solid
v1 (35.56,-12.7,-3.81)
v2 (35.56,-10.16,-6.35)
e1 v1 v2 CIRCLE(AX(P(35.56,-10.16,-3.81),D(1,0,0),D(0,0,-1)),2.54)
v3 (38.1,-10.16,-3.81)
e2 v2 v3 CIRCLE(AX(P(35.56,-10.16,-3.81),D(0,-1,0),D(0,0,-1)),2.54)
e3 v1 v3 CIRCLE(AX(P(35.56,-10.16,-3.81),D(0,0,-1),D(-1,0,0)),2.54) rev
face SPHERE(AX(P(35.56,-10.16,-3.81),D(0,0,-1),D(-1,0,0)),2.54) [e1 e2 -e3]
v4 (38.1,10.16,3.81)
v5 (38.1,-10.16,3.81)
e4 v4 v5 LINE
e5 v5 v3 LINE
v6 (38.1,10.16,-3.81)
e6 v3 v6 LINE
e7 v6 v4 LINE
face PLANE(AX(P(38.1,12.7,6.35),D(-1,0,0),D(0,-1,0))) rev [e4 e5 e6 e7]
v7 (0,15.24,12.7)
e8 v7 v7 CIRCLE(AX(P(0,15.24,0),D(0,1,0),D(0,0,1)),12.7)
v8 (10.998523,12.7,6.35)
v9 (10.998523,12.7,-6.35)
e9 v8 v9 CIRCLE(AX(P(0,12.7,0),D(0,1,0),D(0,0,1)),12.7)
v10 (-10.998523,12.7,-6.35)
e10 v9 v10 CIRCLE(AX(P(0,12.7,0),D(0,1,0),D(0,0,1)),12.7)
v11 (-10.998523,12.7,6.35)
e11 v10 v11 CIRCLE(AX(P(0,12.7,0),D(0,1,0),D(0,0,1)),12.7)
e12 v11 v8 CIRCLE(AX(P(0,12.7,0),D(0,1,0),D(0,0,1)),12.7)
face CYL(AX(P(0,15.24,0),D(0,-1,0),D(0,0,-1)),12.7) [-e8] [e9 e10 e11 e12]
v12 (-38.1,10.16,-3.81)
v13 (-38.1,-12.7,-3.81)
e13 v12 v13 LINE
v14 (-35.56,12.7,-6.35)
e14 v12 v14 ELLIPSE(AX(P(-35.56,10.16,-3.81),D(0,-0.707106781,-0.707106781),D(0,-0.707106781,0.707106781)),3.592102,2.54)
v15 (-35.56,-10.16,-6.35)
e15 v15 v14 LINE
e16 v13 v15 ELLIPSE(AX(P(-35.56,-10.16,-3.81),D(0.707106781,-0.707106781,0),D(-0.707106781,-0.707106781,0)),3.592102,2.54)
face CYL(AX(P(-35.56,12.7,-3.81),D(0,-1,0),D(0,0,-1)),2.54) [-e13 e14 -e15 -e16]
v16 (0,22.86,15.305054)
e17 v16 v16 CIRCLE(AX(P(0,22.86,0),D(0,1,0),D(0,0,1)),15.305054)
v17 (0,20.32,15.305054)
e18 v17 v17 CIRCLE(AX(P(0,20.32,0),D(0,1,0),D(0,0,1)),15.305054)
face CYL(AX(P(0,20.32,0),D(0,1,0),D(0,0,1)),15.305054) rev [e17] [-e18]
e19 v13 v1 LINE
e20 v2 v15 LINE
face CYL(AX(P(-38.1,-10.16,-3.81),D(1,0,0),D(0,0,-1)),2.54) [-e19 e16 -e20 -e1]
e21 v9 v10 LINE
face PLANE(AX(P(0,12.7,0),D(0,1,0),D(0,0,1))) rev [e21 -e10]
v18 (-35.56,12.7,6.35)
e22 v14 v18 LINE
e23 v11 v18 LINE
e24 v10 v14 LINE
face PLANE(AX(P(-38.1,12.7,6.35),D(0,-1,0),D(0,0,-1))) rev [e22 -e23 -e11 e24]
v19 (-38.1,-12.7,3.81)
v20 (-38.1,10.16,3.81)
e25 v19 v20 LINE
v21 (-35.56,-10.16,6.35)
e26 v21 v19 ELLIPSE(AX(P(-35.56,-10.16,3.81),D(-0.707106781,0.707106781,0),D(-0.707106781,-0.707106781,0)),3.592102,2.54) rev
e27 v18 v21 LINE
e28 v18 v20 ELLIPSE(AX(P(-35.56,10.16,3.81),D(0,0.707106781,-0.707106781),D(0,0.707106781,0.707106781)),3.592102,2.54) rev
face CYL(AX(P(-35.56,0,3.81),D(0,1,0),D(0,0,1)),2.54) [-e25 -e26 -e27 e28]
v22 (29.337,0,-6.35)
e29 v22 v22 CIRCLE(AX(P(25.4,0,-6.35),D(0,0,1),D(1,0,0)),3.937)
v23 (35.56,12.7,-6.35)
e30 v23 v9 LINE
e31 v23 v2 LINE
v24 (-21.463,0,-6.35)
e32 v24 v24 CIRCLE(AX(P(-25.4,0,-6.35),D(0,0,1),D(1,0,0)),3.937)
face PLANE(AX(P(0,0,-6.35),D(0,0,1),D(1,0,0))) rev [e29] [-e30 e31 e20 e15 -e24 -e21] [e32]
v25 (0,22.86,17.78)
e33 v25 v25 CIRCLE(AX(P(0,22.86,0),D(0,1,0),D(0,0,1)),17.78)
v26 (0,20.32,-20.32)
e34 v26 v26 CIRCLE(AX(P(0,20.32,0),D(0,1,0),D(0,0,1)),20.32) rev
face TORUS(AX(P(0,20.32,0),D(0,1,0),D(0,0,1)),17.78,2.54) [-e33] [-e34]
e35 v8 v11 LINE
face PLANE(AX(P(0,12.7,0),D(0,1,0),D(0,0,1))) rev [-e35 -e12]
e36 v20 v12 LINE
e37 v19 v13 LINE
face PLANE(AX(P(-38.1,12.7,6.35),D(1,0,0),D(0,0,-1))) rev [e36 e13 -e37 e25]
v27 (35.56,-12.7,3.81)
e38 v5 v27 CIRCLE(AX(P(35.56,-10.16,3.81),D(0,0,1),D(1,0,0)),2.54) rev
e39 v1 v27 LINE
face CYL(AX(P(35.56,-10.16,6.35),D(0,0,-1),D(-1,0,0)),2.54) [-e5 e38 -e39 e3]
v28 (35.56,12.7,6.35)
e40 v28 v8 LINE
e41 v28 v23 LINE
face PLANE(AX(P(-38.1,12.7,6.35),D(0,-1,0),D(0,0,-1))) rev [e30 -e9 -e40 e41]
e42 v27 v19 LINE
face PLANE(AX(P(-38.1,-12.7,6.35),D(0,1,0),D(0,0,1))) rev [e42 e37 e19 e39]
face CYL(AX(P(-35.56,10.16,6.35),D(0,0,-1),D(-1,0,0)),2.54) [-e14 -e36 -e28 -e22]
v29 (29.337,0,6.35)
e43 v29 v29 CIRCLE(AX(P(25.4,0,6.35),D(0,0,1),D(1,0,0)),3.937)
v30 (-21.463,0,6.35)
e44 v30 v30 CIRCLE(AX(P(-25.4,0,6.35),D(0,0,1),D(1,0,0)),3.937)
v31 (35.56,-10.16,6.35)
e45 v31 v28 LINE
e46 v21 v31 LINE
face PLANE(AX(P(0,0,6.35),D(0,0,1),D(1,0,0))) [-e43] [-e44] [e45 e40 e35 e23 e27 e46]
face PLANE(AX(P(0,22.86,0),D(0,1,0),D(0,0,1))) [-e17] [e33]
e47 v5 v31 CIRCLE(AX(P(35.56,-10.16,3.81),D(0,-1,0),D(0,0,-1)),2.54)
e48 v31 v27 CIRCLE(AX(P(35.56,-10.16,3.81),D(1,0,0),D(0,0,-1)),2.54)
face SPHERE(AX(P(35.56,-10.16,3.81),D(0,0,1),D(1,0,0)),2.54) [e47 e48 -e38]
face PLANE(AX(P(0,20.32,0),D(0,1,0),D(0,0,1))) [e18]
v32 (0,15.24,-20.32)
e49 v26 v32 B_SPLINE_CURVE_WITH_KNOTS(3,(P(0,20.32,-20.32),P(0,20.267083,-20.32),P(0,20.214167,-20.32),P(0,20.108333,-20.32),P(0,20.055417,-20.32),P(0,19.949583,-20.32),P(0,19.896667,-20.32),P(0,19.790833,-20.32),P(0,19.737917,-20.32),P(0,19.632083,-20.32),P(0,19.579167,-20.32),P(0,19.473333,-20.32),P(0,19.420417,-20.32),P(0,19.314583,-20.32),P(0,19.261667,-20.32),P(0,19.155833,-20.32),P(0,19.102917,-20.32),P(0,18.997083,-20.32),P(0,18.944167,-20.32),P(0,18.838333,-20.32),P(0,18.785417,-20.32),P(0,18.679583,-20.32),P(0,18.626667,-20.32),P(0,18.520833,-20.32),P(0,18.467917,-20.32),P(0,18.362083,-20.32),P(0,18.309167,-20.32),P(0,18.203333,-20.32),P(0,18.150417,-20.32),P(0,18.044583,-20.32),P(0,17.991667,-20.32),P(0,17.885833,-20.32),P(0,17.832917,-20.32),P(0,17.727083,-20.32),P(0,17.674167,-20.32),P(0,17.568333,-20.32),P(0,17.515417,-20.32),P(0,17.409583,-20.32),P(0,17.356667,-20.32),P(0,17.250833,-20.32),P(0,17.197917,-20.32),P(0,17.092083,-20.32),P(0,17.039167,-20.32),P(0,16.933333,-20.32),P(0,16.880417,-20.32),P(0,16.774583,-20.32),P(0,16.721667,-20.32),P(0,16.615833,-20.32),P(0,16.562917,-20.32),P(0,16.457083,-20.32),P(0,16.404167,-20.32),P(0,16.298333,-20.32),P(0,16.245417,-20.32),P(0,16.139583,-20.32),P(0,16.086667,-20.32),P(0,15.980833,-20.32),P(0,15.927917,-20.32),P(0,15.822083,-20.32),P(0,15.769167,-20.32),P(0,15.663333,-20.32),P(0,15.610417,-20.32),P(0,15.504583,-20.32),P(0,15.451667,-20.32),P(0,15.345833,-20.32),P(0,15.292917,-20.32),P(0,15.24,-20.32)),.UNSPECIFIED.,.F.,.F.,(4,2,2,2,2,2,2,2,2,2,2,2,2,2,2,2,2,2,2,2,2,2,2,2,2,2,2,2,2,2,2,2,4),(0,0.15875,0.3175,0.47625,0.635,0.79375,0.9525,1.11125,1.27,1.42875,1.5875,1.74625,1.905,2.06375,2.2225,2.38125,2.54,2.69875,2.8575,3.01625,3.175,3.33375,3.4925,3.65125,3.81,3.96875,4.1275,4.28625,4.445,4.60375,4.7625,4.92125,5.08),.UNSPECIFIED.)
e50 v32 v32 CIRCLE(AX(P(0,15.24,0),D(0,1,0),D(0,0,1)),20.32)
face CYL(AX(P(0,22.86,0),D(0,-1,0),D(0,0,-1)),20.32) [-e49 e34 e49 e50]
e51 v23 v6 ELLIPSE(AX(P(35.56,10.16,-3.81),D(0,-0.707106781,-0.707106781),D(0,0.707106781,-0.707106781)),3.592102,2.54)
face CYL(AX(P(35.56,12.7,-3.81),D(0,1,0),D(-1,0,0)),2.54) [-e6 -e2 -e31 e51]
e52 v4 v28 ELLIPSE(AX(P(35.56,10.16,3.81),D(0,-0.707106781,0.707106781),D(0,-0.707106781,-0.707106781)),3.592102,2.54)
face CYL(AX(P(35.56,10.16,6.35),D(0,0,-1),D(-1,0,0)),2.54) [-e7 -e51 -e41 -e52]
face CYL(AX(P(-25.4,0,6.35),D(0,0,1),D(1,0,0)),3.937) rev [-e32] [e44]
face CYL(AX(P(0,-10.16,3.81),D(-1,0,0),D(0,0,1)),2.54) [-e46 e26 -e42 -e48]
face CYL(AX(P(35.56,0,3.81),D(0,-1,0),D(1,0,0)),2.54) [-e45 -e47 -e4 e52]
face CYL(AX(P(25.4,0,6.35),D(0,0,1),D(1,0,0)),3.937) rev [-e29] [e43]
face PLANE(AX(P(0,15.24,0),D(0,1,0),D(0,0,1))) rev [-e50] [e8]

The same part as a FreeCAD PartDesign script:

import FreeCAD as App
import Part
import Sketcher

V = App.Vector
Q = App.Units.Quantity


def edges_at(feature, points):
    """Names of the edges that pass closest to the given points."""
    edges = feature.Shape.Edges
    near = lambda p: min(range(len(edges)), key=lambda i: edges[i].distToShape(Part.Vertex(*p))[0])
    return sorted({f"Edge{near(p) + 1}" for p in points})

doc = App.newDocument("Part")
body = doc.addObject("PartDesign::Body", "Body")

# Sketch on XY plane
sketch1 = body.newObject("Sketcher::SketchObject", "Sketch")
sketch1.AttachmentSupport = (doc.getObject("XY_Plane"), [""])
sketch1.MapMode = "FlatFace"
sketch1.addGeometry([
    Part.LineSegment(V(-38, 13, 0), V(-38, -13, 0)),
    Part.LineSegment(V(-38, -13, 0), V(38, -13, 0)),
    Part.LineSegment(V(38, -13, 0), V(38, 13, 0)),
    Part.LineSegment(V(38, 13, 0), V(-38, 13, 0)),
], False)
sketch1.addConstraint([
    Sketcher.Constraint("Coincident", 0, 2, 1, 1),
    Sketcher.Constraint("Coincident", 1, 2, 2, 1),
    Sketcher.Constraint("Coincident", 2, 2, 3, 1),
    Sketcher.Constraint("Coincident", 3, 2, 0, 1),
    Sketcher.Constraint("Vertical", 0),
    Sketcher.Constraint("Horizontal", 1),
    Sketcher.Constraint("Vertical", 2),
    Sketcher.Constraint("Horizontal", 3),
    Sketcher.Constraint("Symmetric", 0, 2, 2, 2, -1, 1),
    Sketcher.Constraint("DistanceX", 1, 1, 1, 2, Q("3 in")),
    Sketcher.Constraint("DistanceY", 0, 2, 0, 1, Q("1 in")),
])
pad1 = body.newObject("PartDesign::Pad", "Pad")
pad1.Profile = sketch1
pad1.Length = Q("0.5 in")
pad1.Midplane = True

# Sketch on XZ plane
sketch2 = body.newObject("Sketcher::SketchObject", "Sketch001")
sketch2.AttachmentSupport = (doc.getObject("XZ_Plane"), [""])
sketch2.MapMode = "FlatFace"
sketch2.AttachmentOffset = App.Placement(V(0, 0, -0.5 * 25.4), App.Rotation())
sketch2.addGeometry(Part.Circle(V(0, 0, 0), V(0, 0, 1), 13), False)
sketch2.addConstraint([
    Sketcher.Constraint("Coincident", 0, 3, -1, 1),
    Sketcher.Constraint("Diameter", 0, Q("1 in")),
])
pad2 = body.newObject("PartDesign::Pad", "Pad001")
pad2.Profile = sketch2
pad2.Length = Q("0.1 in")
pad2.Reversed = True

# Sketch on XZ plane
sketch3 = body.newObject("Sketcher::SketchObject", "Sketch002")
sketch3.AttachmentSupport = (doc.getObject("XZ_Plane"), [""])
sketch3.MapMode = "FlatFace"
sketch3.AttachmentOffset = App.Placement(V(0, 0, -0.6 * 25.4), App.Rotation())
sketch3.addGeometry(Part.Circle(V(0, 0, 0), V(0, 0, 1), 20), False)
sketch3.addConstraint([
    Sketcher.Constraint("Coincident", 0, 3, -1, 1),
    Sketcher.Constraint("Diameter", 0, Q("1.6 in")),
])
pad3 = body.newObject("PartDesign::Pad", "Pad002")
pad3.Profile = sketch3
pad3.Length = Q("0.3 in")
pad3.Reversed = True

# Sketch on XZ plane
sketch4 = body.newObject("Sketcher::SketchObject", "Sketch003")
sketch4.AttachmentSupport = (doc.getObject("XZ_Plane"), [""])
sketch4.MapMode = "FlatFace"
sketch4.AttachmentOffset = App.Placement(V(0, 0, -0.9 * 25.4), App.Rotation())
sketch4.addGeometry(Part.Circle(V(0, 0, 0), V(0, 0, 1), 15), False)
sketch4.addConstraint([
    Sketcher.Constraint("Coincident", 0, 3, -1, 1),
    Sketcher.Constraint("Diameter", 0, 30.610107),
])
pocket1 = body.newObject("PartDesign::Pocket", "Pocket")
pocket1.Profile = sketch4
pocket1.Length = Q("0.1 in")
pocket1.Reversed = True
doc.recompute()

fillet = body.newObject("PartDesign::Fillet", "Fillet")
fillet.Base = (pocket1, edges_at(pocket1, [(0, 22.86, 20.32)]))
fillet.Radius = Q("0.1 in")
doc.recompute()

fillet2 = body.newObject("PartDesign::Fillet", "Fillet001")
fillet2.Base = (fillet, edges_at(fillet, [
    (-38.1, 0, 6.35),
    (0, -12.7, 6.35),
    (38.1, 0, 6.35),
    (0, -12.7, -6.35),
    (-38.1, 0, -6.35),
    (38.1, 0, -6.35),
    (38.1, -12.7, 0),
    (-38.1, 12.7, 0),
    (38.1, 12.7, 0),
]))
fillet2.Radius = Q("0.1 in")

# Sketch on XY plane
sketch5 = body.newObject("Sketcher::SketchObject", "Sketch004")
sketch5.AttachmentSupport = (doc.getObject("XY_Plane"), [""])
sketch5.MapMode = "FlatFace"
sketch5.AttachmentOffset = App.Placement(V(0, 0, 0.25 * 25.4), App.Rotation())
sketch5.addGeometry([
    Part.Circle(V(25.4, 0, 0), V(0, 0, 1), 3.9),
    Part.Circle(V(-25.4, 0, 0), V(0, 0, 1), 3.9),
], False)
sketch5.addConstraint([
    Sketcher.Constraint("Equal", 0, 1),
    Sketcher.Constraint("Symmetric", 0, 3, 1, 3, -1, 1),
    Sketcher.Constraint("PointOnObject", 0, 3, -1),
    Sketcher.Constraint("Diameter", 0, Q("0.31 in")),
    Sketcher.Constraint("DistanceX", -1, 1, 0, 3, Q("1 in")),
])
doc.recompute()
hole = body.newObject("PartDesign::Hole", "Hole")
hole.Profile = sketch5
hole.ThreadType = "None"
hole.Diameter = Q("0.31 in")
hole.DepthType = "Dimension"
hole.Depth = Q("1 in")
hole.DrillPoint = "Angled"
hole.DrillPointAngle = 118

doc.recompute()
